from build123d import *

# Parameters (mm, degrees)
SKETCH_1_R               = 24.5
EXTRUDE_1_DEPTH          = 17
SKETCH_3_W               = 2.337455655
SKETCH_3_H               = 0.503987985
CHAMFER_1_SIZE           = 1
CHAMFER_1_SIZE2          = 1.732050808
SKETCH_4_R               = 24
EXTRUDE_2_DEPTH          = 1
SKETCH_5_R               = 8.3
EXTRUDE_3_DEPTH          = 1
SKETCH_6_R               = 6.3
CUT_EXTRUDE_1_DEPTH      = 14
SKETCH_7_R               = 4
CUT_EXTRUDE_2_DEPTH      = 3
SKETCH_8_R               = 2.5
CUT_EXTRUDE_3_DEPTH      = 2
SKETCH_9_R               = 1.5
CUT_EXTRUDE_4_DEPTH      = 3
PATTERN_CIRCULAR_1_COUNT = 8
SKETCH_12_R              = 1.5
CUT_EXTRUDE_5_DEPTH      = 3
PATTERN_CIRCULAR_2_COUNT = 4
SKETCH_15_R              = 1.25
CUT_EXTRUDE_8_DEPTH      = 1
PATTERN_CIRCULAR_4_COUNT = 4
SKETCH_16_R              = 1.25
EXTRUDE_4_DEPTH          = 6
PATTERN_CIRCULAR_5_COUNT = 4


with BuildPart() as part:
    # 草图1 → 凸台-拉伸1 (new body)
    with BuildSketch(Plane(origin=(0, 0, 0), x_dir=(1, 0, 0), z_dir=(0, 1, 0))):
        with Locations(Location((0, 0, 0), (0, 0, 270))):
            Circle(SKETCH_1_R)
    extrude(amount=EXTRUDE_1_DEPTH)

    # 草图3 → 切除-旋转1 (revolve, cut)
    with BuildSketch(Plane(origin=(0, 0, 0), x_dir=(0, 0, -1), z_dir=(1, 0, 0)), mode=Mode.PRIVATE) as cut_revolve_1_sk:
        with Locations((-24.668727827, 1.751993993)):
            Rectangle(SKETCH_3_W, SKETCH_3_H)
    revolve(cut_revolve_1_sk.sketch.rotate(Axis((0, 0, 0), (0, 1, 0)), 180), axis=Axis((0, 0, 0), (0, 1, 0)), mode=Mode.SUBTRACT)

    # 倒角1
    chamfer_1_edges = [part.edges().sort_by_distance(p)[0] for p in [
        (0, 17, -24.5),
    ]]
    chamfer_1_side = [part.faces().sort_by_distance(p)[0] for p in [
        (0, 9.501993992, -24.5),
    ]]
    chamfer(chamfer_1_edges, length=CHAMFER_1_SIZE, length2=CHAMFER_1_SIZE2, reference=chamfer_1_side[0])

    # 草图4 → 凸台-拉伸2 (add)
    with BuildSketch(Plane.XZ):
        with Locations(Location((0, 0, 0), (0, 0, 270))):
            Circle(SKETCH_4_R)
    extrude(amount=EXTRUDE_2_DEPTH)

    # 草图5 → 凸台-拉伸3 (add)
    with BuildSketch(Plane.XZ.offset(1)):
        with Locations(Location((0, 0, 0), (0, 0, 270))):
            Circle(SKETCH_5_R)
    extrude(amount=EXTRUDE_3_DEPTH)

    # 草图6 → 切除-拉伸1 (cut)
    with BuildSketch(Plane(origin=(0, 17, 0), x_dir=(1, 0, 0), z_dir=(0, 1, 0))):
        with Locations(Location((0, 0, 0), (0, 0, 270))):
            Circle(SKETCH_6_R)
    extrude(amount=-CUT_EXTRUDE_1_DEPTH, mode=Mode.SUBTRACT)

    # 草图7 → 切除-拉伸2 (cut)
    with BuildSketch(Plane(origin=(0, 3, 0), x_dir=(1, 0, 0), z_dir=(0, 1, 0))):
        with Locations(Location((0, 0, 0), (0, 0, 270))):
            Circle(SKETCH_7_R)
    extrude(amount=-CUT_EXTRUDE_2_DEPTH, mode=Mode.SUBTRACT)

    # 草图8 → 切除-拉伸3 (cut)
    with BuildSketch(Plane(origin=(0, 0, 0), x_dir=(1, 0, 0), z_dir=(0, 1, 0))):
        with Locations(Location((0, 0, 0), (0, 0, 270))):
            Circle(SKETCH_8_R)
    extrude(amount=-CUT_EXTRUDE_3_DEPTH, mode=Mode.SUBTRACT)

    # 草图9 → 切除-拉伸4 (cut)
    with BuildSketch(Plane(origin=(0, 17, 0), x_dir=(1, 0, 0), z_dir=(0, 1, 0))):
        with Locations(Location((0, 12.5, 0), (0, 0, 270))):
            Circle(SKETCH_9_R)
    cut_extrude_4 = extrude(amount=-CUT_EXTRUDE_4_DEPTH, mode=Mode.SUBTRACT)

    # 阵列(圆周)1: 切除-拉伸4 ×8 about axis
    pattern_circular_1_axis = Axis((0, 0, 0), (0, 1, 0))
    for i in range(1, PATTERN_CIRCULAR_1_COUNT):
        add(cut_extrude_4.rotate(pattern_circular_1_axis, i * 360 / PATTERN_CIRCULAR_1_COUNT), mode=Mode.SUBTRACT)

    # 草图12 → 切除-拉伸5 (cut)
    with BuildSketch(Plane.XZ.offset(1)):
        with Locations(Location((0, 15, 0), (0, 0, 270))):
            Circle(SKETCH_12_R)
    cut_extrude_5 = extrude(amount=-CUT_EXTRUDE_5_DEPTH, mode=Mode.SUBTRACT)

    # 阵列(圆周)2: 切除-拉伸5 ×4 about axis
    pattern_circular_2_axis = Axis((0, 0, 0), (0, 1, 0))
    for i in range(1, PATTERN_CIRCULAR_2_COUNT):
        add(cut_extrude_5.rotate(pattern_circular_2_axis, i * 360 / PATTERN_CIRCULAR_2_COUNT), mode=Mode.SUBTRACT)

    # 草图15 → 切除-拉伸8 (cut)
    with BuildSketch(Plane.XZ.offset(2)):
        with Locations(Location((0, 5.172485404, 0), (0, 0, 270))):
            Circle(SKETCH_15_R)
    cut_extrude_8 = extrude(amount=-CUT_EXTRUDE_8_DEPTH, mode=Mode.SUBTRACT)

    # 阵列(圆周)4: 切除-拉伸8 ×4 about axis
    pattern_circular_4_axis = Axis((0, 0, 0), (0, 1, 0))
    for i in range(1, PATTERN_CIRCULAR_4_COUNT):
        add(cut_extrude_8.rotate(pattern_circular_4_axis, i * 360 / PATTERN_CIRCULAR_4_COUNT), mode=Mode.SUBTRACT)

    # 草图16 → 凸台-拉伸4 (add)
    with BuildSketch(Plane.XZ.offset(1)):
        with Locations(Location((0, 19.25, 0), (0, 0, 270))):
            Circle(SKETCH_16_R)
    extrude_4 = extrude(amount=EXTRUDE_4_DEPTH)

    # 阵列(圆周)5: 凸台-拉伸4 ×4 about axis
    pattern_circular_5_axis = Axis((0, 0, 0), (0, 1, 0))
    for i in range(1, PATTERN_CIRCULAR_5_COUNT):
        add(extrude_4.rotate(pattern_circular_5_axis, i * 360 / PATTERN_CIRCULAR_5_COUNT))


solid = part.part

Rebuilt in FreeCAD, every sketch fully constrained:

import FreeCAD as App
import Part
import Sketcher


def edges_at(feature, points):
    """Names of the edges that pass closest to the given points."""
    edges = feature.Shape.Edges
    near = lambda p: min(range(len(edges)), key=lambda i: edges[i].distToShape(Part.Vertex(*p))[0])
    return sorted({f"Edge{near(p) + 1}" for p in points})


def add_polygon(sketch, points):
    """Adds a closed chain of lines whose ends are joined by coincident constraints."""
    first, n = sketch.GeometryCount, len(points)
    for a, b in zip(points, points[1:] + points[:1]):
        sketch.addGeometry(Part.LineSegment(App.Vector(*a, 0), App.Vector(*b, 0)), False)
    for i in range(n):
        sketch.addConstraint(Sketcher.Constraint("Coincident", first + i, 2, first + (i + 1) % n, 1))

doc = App.newDocument("Part")
params = doc.addObject("Spreadsheet::Sheet", "Params")
for row, (alias, value) in enumerate([
    ("sketch1_diameter", "49 mm"),
    ("pad1_length", "17 mm"),
    ("groove_angle", "360 deg"),
    ("chamfer_size", "1 mm"),
    ("chamfer_size2", "1.732051 mm"),
    ("sketch3_diameter", "48 mm"),
    ("pad2_length", "1 mm"),
    ("sketch4_diameter", "16.6 mm"),
    ("pad3_length", "1 mm"),
    ("sketch5_diameter", "12.6 mm"),
    ("pocket1_length", "14 mm"),
    ("sketch6_diameter", "8 mm"),
    ("pocket2_length", "3 mm"),
    ("sketch7_diameter", "5 mm"),
    ("pocket3_length", "2 mm"),
    ("sketch8_diameter", "3 mm"),
    ("pocket4_length", "3 mm"),
    ("sketch9_diameter", "3 mm"),
    ("pocket5_length", "3 mm"),
    ("sketch10_diameter", "2.5 mm"),
    ("pocket6_length", "1 mm"),
    ("sketch11_diameter", "2.5 mm"),
    ("pad4_length", "6 mm"),
], start=1):
    params.set(f"A{row}", alias)
    params.set(f"B{row}", "=" + value)
    params.setAlias(f"B{row}", alias)

body = doc.addObject("PartDesign::Body", "Body")

# Sketch on XZ plane
sketch1 = body.newObject("Sketcher::SketchObject", "Sketch")
sketch1.AttachmentSupport = (doc.getObject("XZ_Plane"), [""])
sketch1.MapMode = "FlatFace"
sketch1.addGeometry(Part.Circle(App.Vector(0, 0, 0), App.Vector(0, 0, 1), 24), False)
sketch1.addConstraint([
    Sketcher.Constraint("Coincident", 0, 3, -1, 1),
    Sketcher.Constraint("Diameter", 0, 49.0),
])
sketch1.setExpression("Constraints[1]", "Params.sketch1_diameter")
pad1 = body.newObject("PartDesign::Pad", "Pad")
pad1.Profile = sketch1
pad1.setExpression("Length", "Params.pad1_length")
pad1.Reversed = True

# Sketch on YZ plane
sketch2 = body.newObject("Sketcher::SketchObject", "Sketch001")
sketch2.AttachmentSupport = (doc.getObject("YZ_Plane"), [""])
sketch2.MapMode = "FlatFace"
add_polygon(sketch2, [(2, 25.8), (1.5, 25.8), (1.5, 23.5), (2, 23.5)])  # lines 0-3
sketch2.addConstraint([
    Sketcher.Constraint("Horizontal", 0),
    Sketcher.Constraint("Vertical", 1),
    Sketcher.Constraint("Horizontal", 2),
    Sketcher.Constraint("Vertical", 3),
    Sketcher.Constraint("DistanceX", -1, 1, 0, 2, 1.5),
    Sketcher.Constraint("DistanceY", -1, 1, 1, 2, 23.5),
    Sketcher.Constraint("DistanceX", 0, 2, 0, 1, 0.503988),
    Sketcher.Constraint("DistanceY", 1, 2, 1, 1, 2.337456),
])
groove = body.newObject("PartDesign::Groove", "Groove")
groove.Profile = sketch2
groove.ReferenceAxis = (sketch2, ["H_Axis"])
groove.setExpression("Angle", "Params.groove_angle")
doc.recompute()

chamfer = body.newObject("PartDesign::Chamfer", "Chamfer")
chamfer.Base = (groove, edges_at(groove, [(0, 17, -24.5)]))
chamfer.ChamferType = "Two distances"
chamfer.setExpression("Size", "Params.chamfer_size")
chamfer.setExpression("Size2", "Params.chamfer_size2")

# Sketch on XZ plane
sketch3 = body.newObject("Sketcher::SketchObject", "Sketch002")
sketch3.AttachmentSupport = (doc.getObject("XZ_Plane"), [""])
sketch3.MapMode = "FlatFace"
sketch3.addGeometry(Part.Circle(App.Vector(0, 0, 0), App.Vector(0, 0, 1), 24), False)
sketch3.addConstraint([
    Sketcher.Constraint("Coincident", 0, 3, -1, 1),
    Sketcher.Constraint("Diameter", 0, 48.0),
])
sketch3.setExpression("Constraints[1]", "Params.sketch3_diameter")
pad2 = body.newObject("PartDesign::Pad", "Pad001")
pad2.Profile = sketch3
pad2.setExpression("Length", "Params.pad2_length")

# Sketch on XZ plane
sketch4 = body.newObject("Sketcher::SketchObject", "Sketch003")
sketch4.AttachmentSupport = (doc.getObject("XZ_Plane"), [""])
sketch4.MapMode = "FlatFace"
sketch4.AttachmentOffset = App.Placement(App.Vector(0, 0, 1), App.Rotation())
sketch4.addGeometry(Part.Circle(App.Vector(0, 0, 0), App.Vector(0, 0, 1), 8), False)
sketch4.addConstraint([
    Sketcher.Constraint("Coincident", 0, 3, -1, 1),
    Sketcher.Constraint("Diameter", 0, 16.6),
])
sketch4.setExpression("Constraints[1]", "Params.sketch4_diameter")
pad3 = body.newObject("PartDesign::Pad", "Pad002")
pad3.Profile = sketch4
pad3.setExpression("Length", "Params.pad3_length")

# Sketch on XZ plane
sketch5 = body.newObject("Sketcher::SketchObject", "Sketch004")
sketch5.AttachmentSupport = (doc.getObject("XZ_Plane"), [""])
sketch5.MapMode = "FlatFace"
sketch5.AttachmentOffset = App.Placement(App.Vector(0, 0, -17), App.Rotation())
sketch5.addGeometry(Part.Circle(App.Vector(0, 0, 0), App.Vector(0, 0, 1), 6), False)
sketch5.addConstraint([
    Sketcher.Constraint("Coincident", 0, 3, -1, 1),
    Sketcher.Constraint("Diameter", 0, 12.6),
])
sketch5.setExpression("Constraints[1]", "Params.sketch5_diameter")
pocket1 = body.newObject("PartDesign::Pocket", "Pocket")
pocket1.Profile = sketch5
pocket1.setExpression("Length", "Params.pocket1_length")
pocket1.Reversed = True

# Sketch on XZ plane
sketch6 = body.newObject("Sketcher::SketchObject", "Sketch005")
sketch6.AttachmentSupport = (doc.getObject("XZ_Plane"), [""])
sketch6.MapMode = "FlatFace"
sketch6.AttachmentOffset = App.Placement(App.Vector(0, 0, -3), App.Rotation())
sketch6.addGeometry(Part.Circle(App.Vector(0, 0, 0), App.Vector(0, 0, 1), 4), False)
sketch6.addConstraint([
    Sketcher.Constraint("Coincident", 0, 3, -1, 1),
    Sketcher.Constraint("Diameter", 0, 8.0),
])
sketch6.setExpression("Constraints[1]", "Params.sketch6_diameter")
pocket2 = body.newObject("PartDesign::Pocket", "Pocket001")
pocket2.Profile = sketch6
pocket2.setExpression("Length", "Params.pocket2_length")
pocket2.Reversed = True

# Sketch on XZ plane
sketch7 = body.newObject("Sketcher::SketchObject", "Sketch006")
sketch7.AttachmentSupport = (doc.getObject("XZ_Plane"), [""])
sketch7.MapMode = "FlatFace"
sketch7.addGeometry(Part.Circle(App.Vector(0, 0, 0), App.Vector(0, 0, 1), 2.5), False)
sketch7.addConstraint([
    Sketcher.Constraint("Coincident", 0, 3, -1, 1),
    Sketcher.Constraint("Diameter", 0, 5.0),
])
sketch7.setExpression("Constraints[1]", "Params.sketch7_diameter")
pocket3 = body.newObject("PartDesign::Pocket", "Pocket002")
pocket3.Profile = sketch7
pocket3.setExpression("Length", "Params.pocket3_length")
pocket3.Reversed = True

# Sketch on XZ plane
sketch8 = body.newObject("Sketcher::SketchObject", "Sketch007")
sketch8.AttachmentSupport = (doc.getObject("XZ_Plane"), [""])
sketch8.MapMode = "FlatFace"
sketch8.AttachmentOffset = App.Placement(App.Vector(0, 0, -17), App.Rotation())
sketch8.addGeometry(Part.Circle(App.Vector(0, -12.5, 0), App.Vector(0, 0, 1), 1.5), False)
sketch8.addConstraint([
    Sketcher.Constraint("PointOnObject", 0, 3, -2),
    Sketcher.Constraint("Diameter", 0, 3.0),
    Sketcher.Constraint("DistanceY", 0, 3, -1, 1, 12.5),
])
sketch8.setExpression("Constraints[1]", "Params.sketch8_diameter")
pocket4 = body.newObject("PartDesign::Pocket", "Pocket003")
pocket4.Profile = sketch8
pocket4.setExpression("Length", "Params.pocket4_length")
pocket4.Reversed = True
doc.recompute()

polarpattern = body.newObject("PartDesign::PolarPattern", "PolarPattern")
polarpattern.Originals = [pocket4]
polarpattern.Axis = (doc.getObject("Y_Axis"), [""])
polarpattern.Angle = 360
polarpattern.Occurrences = 8
body.Tip = polarpattern

# Sketch on XZ plane
sketch9 = body.newObject("Sketcher::SketchObject", "Sketch008")
sketch9.AttachmentSupport = (doc.getObject("XZ_Plane"), [""])
sketch9.MapMode = "FlatFace"
sketch9.AttachmentOffset = App.Placement(App.Vector(0, 0, 1), App.Rotation())
sketch9.addGeometry(Part.Circle(App.Vector(0, 15, 0), App.Vector(0, 0, 1), 1.5), False)
sketch9.addConstraint([
    Sketcher.Constraint("PointOnObject", 0, 3, -2),
    Sketcher.Constraint("Diameter", 0, 3.0),
    Sketcher.Constraint("DistanceY", -1, 1, 0, 3, 15.0),
])
sketch9.setExpression("Constraints[1]", "Params.sketch9_diameter")
pocket5 = body.newObject("PartDesign::Pocket", "Pocket004")
pocket5.Profile = sketch9
pocket5.setExpression("Length", "Params.pocket5_length")
doc.recompute()

polarpattern2 = body.newObject("PartDesign::PolarPattern", "PolarPattern001")
polarpattern2.Originals = [pocket5]
polarpattern2.Axis = (doc.getObject("Y_Axis"), [""])
polarpattern2.Angle = 360
polarpattern2.Occurrences = 4
body.Tip = polarpattern2

# Sketch on XZ plane
sketch10 = body.newObject("Sketcher::SketchObject", "Sketch009")
sketch10.AttachmentSupport = (doc.getObject("XZ_Plane"), [""])
sketch10.MapMode = "FlatFace"
sketch10.AttachmentOffset = App.Placement(App.Vector(0, 0, 2), App.Rotation())
sketch10.addGeometry(Part.Circle(App.Vector(0, 5.2, 0), App.Vector(0, 0, 1), 1.2), False)
sketch10.addConstraint([
    Sketcher.Constraint("PointOnObject", 0, 3, -2),
    Sketcher.Constraint("Diameter", 0, 2.5),
    Sketcher.Constraint("DistanceY", -1, 1, 0, 3, 5.172485),
])
sketch10.setExpression("Constraints[1]", "Params.sketch10_diameter")
pocket6 = body.newObject("PartDesign::Pocket", "Pocket005")
pocket6.Profile = sketch10
pocket6.setExpression("Length", "Params.pocket6_length")
doc.recompute()

polarpattern3 = body.newObject("PartDesign::PolarPattern", "PolarPattern002")
polarpattern3.Originals = [pocket6]
polarpattern3.Axis = (doc.getObject("Y_Axis"), [""])
polarpattern3.Angle = 360
polarpattern3.Occurrences = 4
body.Tip = polarpattern3

# Sketch on XZ plane
sketch11 = body.newObject("Sketcher::SketchObject", "Sketch010")
sketch11.AttachmentSupport = (doc.getObject("XZ_Plane"), [""])
sketch11.MapMode = "FlatFace"
sketch11.AttachmentOffset = App.Placement(App.Vector(0, 0, 1), App.Rotation())
sketch11.addGeometry(Part.Circle(App.Vector(0, 19.2, 0), App.Vector(0, 0, 1), 1.2), False)
sketch11.addConstraint([
    Sketcher.Constraint("PointOnObject", 0, 3, -2),
    Sketcher.Constraint("Diameter", 0, 2.5),
    Sketcher.Constraint("DistanceY", -1, 1, 0, 3, 19.25),
])
sketch11.setExpression("Constraints[1]", "Params.sketch11_diameter")
pad4 = body.newObject("PartDesign::Pad", "Pad003")
pad4.Profile = sketch11
pad4.setExpression("Length", "Params.pad4_length")
doc.recompute()

polarpattern4 = body.newObject("PartDesign::PolarPattern", "PolarPattern003")
polarpattern4.Originals = [pad4]
polarpattern4.Axis = (doc.getObject("Y_Axis"), [""])
polarpattern4.Angle = 360
polarpattern4.Occurrences = 4
body.Tip = polarpattern4

doc.recompute()
